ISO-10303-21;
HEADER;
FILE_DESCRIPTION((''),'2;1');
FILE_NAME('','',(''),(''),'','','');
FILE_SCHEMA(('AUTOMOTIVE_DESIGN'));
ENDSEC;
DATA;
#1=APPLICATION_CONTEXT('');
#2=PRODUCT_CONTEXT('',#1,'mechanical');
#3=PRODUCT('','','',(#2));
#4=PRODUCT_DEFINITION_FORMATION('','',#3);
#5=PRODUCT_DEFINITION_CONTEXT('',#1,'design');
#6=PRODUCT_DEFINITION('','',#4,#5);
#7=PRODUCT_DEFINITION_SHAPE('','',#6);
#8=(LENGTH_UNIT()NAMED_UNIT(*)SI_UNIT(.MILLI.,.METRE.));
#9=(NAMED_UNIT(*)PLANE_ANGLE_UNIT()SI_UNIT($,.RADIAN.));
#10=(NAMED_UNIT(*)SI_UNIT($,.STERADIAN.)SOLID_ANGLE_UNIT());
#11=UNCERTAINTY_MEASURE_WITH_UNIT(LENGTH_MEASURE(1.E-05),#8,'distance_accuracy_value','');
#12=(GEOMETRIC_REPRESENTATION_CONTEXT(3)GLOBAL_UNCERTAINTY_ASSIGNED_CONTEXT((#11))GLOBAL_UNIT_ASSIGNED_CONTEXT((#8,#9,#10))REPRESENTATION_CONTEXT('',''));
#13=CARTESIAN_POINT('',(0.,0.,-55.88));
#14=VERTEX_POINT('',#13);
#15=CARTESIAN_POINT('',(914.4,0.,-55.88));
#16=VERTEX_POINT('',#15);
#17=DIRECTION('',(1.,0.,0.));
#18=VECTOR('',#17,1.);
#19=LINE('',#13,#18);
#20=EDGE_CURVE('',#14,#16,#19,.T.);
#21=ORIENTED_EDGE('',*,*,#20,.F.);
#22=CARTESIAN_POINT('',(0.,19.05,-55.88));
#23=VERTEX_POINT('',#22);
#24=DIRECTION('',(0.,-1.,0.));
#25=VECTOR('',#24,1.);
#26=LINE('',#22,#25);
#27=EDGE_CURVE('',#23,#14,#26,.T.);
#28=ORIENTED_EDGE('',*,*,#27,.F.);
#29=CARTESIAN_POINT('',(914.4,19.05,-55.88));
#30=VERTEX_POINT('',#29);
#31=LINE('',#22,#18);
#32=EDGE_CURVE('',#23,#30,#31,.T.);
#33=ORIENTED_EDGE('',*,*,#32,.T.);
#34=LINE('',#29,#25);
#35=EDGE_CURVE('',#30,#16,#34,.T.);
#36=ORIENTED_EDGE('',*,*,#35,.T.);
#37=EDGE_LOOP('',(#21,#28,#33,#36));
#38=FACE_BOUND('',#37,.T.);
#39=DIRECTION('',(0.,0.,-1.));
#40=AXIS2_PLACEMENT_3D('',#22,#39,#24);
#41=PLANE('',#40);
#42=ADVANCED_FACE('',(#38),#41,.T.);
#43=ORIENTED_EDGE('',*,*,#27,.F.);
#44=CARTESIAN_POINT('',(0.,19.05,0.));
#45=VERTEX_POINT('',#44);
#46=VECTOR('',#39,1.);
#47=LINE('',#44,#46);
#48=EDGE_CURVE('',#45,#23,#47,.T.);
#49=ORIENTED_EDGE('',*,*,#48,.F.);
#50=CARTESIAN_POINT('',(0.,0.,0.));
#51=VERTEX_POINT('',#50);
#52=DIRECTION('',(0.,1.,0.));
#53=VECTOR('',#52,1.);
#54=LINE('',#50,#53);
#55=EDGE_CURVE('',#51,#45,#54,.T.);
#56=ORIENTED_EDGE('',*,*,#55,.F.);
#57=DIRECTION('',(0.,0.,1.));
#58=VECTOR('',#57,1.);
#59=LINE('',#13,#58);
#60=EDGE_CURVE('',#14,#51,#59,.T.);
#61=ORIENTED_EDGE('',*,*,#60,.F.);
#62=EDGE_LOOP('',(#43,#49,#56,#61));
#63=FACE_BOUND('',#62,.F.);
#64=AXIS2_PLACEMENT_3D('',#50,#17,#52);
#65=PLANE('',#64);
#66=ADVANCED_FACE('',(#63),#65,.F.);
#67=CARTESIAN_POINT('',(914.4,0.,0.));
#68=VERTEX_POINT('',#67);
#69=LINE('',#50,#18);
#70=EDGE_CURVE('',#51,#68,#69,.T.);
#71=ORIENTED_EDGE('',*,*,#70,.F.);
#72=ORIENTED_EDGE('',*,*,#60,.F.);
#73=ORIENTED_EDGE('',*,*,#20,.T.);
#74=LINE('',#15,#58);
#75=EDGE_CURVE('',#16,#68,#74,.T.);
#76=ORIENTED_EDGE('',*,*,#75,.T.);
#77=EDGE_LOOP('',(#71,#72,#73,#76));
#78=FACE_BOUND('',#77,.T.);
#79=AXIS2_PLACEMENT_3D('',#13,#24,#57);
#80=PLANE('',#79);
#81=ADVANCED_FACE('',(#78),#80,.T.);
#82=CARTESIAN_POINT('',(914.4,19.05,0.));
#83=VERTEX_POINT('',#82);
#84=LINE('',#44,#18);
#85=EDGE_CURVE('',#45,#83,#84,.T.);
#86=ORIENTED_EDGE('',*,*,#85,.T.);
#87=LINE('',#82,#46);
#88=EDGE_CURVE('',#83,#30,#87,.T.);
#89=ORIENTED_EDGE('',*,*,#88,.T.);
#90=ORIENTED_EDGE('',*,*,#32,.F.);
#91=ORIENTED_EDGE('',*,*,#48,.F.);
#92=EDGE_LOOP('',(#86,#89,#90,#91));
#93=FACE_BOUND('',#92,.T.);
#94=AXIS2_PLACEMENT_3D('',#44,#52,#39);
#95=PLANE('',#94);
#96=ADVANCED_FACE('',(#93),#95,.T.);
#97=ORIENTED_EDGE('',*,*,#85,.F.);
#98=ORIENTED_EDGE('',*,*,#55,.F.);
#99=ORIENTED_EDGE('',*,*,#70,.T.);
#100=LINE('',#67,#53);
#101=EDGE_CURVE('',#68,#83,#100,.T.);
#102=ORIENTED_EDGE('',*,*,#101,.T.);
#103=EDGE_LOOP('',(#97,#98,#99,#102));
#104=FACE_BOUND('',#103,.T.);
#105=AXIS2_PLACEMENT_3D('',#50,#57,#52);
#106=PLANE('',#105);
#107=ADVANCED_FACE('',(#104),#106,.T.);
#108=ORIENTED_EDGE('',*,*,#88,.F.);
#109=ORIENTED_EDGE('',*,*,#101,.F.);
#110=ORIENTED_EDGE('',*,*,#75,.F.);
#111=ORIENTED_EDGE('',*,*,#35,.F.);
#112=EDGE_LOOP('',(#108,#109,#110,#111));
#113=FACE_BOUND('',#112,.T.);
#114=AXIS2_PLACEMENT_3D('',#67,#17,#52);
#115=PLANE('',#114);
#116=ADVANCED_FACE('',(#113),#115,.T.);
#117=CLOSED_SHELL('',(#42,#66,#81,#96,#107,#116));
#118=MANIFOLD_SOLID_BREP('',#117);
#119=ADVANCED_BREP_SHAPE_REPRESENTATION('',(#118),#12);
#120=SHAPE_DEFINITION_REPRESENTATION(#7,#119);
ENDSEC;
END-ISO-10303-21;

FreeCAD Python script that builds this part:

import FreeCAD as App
import Part
import Sketcher
from FreeCAD import Vector
Q = App.Units.Quantity


def add_polygon(sketch, points):
    """Adds a closed chain of lines whose ends are joined by coincident constraints."""
    first, n = sketch.GeometryCount, len(points)
    for a, b in zip(points, points[1:] + points[:1]):
        sketch.addGeometry(Part.LineSegment(App.Vector(*a, 0), App.Vector(*b, 0)), False)
    for i in range(n):
        sketch.addConstraint(Sketcher.Constraint("Coincident", first + i, 2, first + (i + 1) % n, 1))

doc = App.newDocument("Part")
body = doc.addObject("PartDesign::Body", "Body")

# Sketch on YZ plane
sketch1 = body.newObject("Sketcher::SketchObject", "Sketch")
sketch1.AttachmentSupport = (doc.getObject("YZ_Plane"), [""])
sketch1.MapMode = "FlatFace"
add_polygon(sketch1, [(19.05, 0), (0, 0), (0, -55.88), (19.05, -55.88)])  # lines 0-3
sketch1.addConstraint([
    Sketcher.Constraint("Horizontal", 0),
    Sketcher.Constraint("Vertical", 1),
    Sketcher.Constraint("Horizontal", 2),
    Sketcher.Constraint("Vertical", 3),
    Sketcher.Constraint("Coincident", 0, 2, -1, 1),
    Sketcher.Constraint("DistanceY", 1, 2, 1, 1, Q("2.2 in")),
    Sketcher.Constraint("DistanceX", 0, 2, 0, 1, Q("0.75 in")),
])
pad1 = body.newObject("PartDesign::Pad", "Pad")
pad1.Profile = sketch1
pad1.Length = Q("36 in")

doc.recompute()
